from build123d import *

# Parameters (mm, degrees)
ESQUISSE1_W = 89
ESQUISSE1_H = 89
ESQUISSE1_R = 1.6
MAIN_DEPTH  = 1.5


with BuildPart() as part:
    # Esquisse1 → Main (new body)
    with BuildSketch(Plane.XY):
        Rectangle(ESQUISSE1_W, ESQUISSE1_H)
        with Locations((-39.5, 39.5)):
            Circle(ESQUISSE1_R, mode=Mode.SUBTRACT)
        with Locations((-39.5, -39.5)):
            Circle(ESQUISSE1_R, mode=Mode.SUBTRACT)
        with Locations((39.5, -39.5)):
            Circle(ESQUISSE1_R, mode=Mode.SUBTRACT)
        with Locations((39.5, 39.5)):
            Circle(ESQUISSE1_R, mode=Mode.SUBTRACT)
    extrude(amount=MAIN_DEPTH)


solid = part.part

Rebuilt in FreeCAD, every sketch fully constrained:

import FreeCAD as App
import Part
import Sketcher
from FreeCAD import Vector
Q = App.Units.Quantity

doc = App.newDocument("Part")
body = doc.addObject("PartDesign::Body", "Body")

# Sketch on XY plane
sketch1 = body.newObject("Sketcher::SketchObject", "Sketch")
sketch1.AttachmentSupport = (doc.getObject("XY_Plane"), [""])
sketch1.MapMode = "FlatFace"
sketch1.addGeometry([
    Part.LineSegment(Vector(-44.5, 44.5, 0), Vector(-44.5, -44.5, 0)),  # 0
    Part.LineSegment(Vector(-44.5, -44.5, 0), Vector(44.5, -44.5, 0)),  # 1
    Part.LineSegment(Vector(44.5, -44.5, 0), Vector(44.5, 44.5, 0)),  # 2
    Part.LineSegment(Vector(44.5, 44.5, 0), Vector(-44.5, 44.5, 0)),  # 3
    Part.Circle(Vector(-39.5, -39.5, 0), Vector(0, 0, 1), 1.6),  # 4
    Part.Circle(Vector(39.5, -39.5, 0), Vector(0, 0, 1), 1.6),  # 5
    Part.Circle(Vector(-39.5, 39.5, 0), Vector(0, 0, 1), 1.6),  # 6
    Part.Circle(Vector(39.5, 39.5, 0), Vector(0, 0, 1), 1.6),  # 7
], False)
sketch1.addConstraint([
    Sketcher.Constraint("Coincident", 0, 2, 1, 1),
    Sketcher.Constraint("Coincident", 1, 2, 2, 1),
    Sketcher.Constraint("Coincident", 2, 2, 3, 1),
    Sketcher.Constraint("Coincident", 3, 2, 0, 1),
    Sketcher.Constraint("Vertical", 0),
    Sketcher.Constraint("Horizontal", 1),
    Sketcher.Constraint("Vertical", 2),
    Sketcher.Constraint("Horizontal", 3),
    Sketcher.Constraint("Equal", 4, 5),
    Sketcher.Constraint("Equal", 5, 6),
    Sketcher.Constraint("Equal", 6, 7),
    Sketcher.Constraint("Symmetric", 5, 3, 6, 3, -1, 1),
    Sketcher.Constraint("Symmetric", 4, 3, 7, 3, -1, 1),
    Sketcher.Constraint("Symmetric", 0, 2, 2, 2, -1, 1),
    Sketcher.Constraint("Symmetric", 4, 3, 5, 3, -2),
    Sketcher.Constraint("Equal", 3, 0),
    Sketcher.Constraint("Diameter", 4, Q("3.2 mm")),
    Sketcher.Constraint("DistanceX", 1, 1, 1, 2, Q("89 mm")),
    Sketcher.Constraint("DistanceX", 4, 3, 5, 3, Q("79 mm")),
    Sketcher.Constraint("DistanceY", 4, 3, 6, 3, Q("79 mm")),
])
pad1 = body.newObject("PartDesign::Pad", "Pad")
pad1.Profile = sketch1
pad1.Length = 1.5

doc.recompute()
